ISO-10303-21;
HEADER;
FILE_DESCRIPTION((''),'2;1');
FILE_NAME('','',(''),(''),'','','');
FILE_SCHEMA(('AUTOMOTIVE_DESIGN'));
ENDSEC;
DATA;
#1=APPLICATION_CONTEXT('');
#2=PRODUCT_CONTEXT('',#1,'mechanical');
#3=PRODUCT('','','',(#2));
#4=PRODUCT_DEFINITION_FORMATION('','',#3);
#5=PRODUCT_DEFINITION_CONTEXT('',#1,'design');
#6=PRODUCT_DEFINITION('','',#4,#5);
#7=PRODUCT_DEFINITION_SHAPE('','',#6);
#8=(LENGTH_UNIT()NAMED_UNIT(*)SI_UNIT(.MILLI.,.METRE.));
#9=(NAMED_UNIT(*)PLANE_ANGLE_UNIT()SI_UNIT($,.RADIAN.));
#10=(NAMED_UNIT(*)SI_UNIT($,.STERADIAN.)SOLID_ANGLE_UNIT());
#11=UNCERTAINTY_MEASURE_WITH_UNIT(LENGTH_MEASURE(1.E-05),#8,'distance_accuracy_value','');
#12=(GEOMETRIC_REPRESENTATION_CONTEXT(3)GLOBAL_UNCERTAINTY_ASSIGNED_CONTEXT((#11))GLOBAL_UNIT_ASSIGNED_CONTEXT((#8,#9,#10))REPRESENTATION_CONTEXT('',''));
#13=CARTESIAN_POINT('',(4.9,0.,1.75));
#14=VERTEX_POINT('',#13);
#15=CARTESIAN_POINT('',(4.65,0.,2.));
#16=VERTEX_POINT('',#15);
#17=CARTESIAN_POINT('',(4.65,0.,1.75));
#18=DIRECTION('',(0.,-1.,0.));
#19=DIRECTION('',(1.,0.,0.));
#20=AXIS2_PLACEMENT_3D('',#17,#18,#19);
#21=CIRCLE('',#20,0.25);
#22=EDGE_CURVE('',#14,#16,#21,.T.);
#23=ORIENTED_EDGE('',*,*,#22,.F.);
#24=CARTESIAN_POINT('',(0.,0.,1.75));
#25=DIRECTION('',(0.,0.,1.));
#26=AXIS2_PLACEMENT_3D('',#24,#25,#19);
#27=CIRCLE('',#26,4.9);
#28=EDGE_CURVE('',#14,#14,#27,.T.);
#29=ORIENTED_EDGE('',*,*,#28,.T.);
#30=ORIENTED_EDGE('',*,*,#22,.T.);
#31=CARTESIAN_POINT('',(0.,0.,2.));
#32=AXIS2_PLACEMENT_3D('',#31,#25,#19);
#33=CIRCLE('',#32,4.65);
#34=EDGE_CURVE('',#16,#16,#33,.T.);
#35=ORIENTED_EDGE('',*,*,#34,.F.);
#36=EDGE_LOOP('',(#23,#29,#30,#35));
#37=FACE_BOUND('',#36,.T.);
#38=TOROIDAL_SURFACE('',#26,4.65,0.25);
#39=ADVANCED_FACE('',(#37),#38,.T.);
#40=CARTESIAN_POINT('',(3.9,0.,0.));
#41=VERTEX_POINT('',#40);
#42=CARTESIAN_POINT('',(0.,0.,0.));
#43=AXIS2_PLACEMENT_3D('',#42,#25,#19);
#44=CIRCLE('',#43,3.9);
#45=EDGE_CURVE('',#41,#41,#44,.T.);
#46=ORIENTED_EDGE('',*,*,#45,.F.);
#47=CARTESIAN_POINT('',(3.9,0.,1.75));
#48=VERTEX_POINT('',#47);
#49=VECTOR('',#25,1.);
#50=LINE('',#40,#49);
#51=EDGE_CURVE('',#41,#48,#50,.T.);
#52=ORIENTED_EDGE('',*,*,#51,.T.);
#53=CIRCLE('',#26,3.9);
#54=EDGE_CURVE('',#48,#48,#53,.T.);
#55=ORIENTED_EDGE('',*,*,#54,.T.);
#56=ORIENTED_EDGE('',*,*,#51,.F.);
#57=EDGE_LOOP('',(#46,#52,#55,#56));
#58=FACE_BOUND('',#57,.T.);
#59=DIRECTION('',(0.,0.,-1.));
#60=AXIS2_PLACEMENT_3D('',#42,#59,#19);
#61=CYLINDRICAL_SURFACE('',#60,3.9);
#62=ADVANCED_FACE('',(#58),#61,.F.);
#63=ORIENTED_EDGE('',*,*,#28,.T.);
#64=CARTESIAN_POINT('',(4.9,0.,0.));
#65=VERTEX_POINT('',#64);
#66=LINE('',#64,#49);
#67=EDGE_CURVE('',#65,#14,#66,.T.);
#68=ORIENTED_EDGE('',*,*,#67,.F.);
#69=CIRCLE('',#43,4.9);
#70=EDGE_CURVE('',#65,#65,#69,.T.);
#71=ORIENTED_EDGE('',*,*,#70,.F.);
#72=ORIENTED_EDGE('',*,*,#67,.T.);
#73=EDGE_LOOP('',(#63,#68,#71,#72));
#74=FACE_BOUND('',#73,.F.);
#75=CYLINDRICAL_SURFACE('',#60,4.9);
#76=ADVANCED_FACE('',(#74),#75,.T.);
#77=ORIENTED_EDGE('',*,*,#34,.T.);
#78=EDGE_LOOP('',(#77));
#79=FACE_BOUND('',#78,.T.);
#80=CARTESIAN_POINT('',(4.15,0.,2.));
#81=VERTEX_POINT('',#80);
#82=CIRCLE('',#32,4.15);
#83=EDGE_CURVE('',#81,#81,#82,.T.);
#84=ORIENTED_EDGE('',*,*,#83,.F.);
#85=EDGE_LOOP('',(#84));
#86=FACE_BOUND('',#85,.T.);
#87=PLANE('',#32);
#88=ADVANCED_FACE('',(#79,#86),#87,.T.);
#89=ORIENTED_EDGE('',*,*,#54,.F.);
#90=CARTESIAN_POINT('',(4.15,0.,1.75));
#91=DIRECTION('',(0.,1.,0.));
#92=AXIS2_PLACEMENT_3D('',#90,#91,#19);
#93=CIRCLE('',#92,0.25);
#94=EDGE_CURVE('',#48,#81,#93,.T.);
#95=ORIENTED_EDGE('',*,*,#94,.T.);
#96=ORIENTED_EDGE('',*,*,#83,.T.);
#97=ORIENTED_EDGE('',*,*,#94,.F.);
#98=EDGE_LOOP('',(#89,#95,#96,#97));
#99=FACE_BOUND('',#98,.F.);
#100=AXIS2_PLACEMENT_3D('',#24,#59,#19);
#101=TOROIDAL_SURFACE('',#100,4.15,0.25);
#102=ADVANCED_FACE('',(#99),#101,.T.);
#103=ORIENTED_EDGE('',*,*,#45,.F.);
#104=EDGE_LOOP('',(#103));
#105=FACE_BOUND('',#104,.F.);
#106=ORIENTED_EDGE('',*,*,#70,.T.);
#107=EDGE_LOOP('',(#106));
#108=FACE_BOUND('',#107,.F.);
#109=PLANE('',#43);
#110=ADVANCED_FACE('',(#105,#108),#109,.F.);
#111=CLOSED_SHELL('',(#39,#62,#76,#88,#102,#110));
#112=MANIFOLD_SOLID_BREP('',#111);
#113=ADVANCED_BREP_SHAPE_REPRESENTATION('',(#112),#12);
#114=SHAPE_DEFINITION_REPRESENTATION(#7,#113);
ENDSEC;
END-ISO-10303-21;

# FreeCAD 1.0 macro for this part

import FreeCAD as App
import Part
import Sketcher
from FreeCAD import Vector


def edges_at(feature, points):
    """Names of the edges that pass closest to the given points."""
    edges = feature.Shape.Edges
    near = lambda p: min(range(len(edges)), key=lambda i: edges[i].distToShape(Part.Vertex(*p))[0])
    return sorted({f"Edge{near(p) + 1}" for p in points})

doc = App.newDocument("Part")
body = doc.addObject("PartDesign::Body", "Body")

# Sketch on XY plane
sketch1 = body.newObject("Sketcher::SketchObject", "Sketch")
sketch1.AttachmentSupport = (doc.getObject("XY_Plane"), [""])
sketch1.MapMode = "FlatFace"
sketch1.addGeometry(Part.Circle(Vector(0, 0, 0), Vector(0, 0, 1), 4.9), False)
sketch1.addGeometry(Part.Circle(Vector(0, 0, 0), Vector(0, 0, 1), 3.9), False)
sketch1.addConstraint(Sketcher.Constraint("Coincident", 0, 3, -1, 1))
sketch1.addConstraint(Sketcher.Constraint("Coincident", 1, 3, -1, 1))
sketch1.addConstraint(Sketcher.Constraint("Diameter", 1, 7.8))
sketch1.addConstraint(Sketcher.Constraint("Diameter", 0, 9.8))
pad1 = body.newObject("PartDesign::Pad", "Pad")
pad1.Profile = sketch1
pad1.Length = 2
doc.recompute()

fillet = body.newObject("PartDesign::Fillet", "Fillet")
fillet.Base = (pad1, edges_at(pad1, [(-3.9, 0, 2), (-4.9, 0, 2)]))
fillet.Radius = 0.25

doc.recompute()
